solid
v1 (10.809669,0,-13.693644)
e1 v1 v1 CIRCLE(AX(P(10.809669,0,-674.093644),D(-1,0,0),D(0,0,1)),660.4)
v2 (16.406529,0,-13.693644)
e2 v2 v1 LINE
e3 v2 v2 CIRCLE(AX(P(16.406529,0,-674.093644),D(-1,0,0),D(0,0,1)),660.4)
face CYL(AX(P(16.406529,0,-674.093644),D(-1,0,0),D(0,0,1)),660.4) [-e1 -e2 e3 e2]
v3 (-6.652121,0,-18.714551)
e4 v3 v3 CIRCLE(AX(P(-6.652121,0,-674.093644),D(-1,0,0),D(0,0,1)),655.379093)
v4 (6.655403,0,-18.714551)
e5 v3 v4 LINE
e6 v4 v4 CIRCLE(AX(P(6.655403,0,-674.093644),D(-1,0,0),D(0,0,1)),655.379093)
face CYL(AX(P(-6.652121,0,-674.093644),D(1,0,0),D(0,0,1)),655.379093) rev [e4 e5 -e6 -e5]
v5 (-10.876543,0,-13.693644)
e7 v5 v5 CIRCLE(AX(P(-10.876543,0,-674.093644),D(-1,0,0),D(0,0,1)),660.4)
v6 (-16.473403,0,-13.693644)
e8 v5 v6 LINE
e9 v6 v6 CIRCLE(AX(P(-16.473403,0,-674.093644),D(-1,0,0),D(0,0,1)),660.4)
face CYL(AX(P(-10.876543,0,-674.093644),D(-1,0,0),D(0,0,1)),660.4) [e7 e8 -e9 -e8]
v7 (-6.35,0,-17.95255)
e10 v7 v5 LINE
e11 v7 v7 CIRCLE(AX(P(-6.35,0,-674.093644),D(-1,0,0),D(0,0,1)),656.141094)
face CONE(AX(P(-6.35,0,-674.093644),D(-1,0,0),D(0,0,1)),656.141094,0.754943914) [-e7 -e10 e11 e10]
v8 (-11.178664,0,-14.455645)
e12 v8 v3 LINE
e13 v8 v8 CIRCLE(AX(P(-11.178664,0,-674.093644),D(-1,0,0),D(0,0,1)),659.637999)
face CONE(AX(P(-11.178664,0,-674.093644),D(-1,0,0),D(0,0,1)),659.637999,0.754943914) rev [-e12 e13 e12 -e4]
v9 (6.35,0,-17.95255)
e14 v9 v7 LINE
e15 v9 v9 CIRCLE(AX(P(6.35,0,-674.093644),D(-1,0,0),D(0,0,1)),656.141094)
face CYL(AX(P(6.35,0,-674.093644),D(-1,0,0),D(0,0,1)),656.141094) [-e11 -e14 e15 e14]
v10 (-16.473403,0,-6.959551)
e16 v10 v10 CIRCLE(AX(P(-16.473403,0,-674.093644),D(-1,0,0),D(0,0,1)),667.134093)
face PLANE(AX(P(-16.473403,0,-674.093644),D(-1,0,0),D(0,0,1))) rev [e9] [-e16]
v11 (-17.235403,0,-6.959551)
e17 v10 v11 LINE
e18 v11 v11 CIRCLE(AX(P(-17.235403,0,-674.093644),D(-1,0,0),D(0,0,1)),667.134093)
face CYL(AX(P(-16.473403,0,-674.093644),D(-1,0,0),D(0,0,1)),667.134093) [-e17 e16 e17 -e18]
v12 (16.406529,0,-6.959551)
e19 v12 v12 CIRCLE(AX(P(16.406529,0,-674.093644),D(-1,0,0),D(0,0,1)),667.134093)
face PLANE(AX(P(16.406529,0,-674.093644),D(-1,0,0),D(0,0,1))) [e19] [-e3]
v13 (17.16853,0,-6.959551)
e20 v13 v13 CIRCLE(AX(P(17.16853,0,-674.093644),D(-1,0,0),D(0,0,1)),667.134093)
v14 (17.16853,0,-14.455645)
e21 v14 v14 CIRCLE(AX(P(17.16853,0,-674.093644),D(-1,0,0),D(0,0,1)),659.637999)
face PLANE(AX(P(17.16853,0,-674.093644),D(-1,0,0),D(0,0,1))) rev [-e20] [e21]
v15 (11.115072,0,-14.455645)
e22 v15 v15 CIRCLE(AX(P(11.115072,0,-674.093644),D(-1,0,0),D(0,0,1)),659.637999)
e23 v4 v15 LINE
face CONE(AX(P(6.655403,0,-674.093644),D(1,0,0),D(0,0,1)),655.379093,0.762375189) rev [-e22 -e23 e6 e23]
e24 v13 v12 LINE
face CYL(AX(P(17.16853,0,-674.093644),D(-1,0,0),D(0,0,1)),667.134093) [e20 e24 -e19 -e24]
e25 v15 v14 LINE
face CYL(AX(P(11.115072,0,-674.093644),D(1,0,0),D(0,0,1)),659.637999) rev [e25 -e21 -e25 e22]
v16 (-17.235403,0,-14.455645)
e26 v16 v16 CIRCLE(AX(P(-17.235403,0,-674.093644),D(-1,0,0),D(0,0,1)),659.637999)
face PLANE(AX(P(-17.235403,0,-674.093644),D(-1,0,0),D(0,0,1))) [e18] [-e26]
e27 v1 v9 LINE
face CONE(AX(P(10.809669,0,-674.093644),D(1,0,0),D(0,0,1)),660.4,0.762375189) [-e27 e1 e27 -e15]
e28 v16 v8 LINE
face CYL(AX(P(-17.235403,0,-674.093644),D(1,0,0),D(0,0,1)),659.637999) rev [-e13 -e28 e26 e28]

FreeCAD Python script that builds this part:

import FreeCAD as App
import Part
import Sketcher
Q = App.Units.Quantity

doc = App.newDocument("Part")
body = doc.addObject("PartDesign::Body", "Body")

# Sketch on XZ plane
sketch1 = body.newObject("Sketcher::SketchObject", "Sketch")
sketch1.AttachmentSupport = (doc.getObject("XZ_Plane"), [""])
sketch1.MapMode = "FlatFace"
sketch1.addGeometry([
    Part.LineSegment(App.Vector(-16.5, -13.7, 0), App.Vector(-16.5, -7, 0)),  # 0
    Part.LineSegment(App.Vector(-16.5, -7, 0), App.Vector(-17.2, -7, 0)),  # 1
    Part.LineSegment(App.Vector(-17.2, -7, 0), App.Vector(-17.2, -14.5, 0)),  # 2
    Part.LineSegment(App.Vector(-17.2, -14.5, 0), App.Vector(-11.2, -14.5, 0)),  # 3
    Part.LineSegment(App.Vector(-11.2, -14.5, 0), App.Vector(-6.7, -18.7, 0)),  # 4
    Part.LineSegment(App.Vector(-6.7, -18.7, 0), App.Vector(6.7, -18.7, 0)),  # 5
    Part.LineSegment(App.Vector(6.7, -18.7, 0), App.Vector(11.1, -14.5, 0)),  # 6
    Part.LineSegment(App.Vector(11.1, -14.5, 0), App.Vector(17.2, -14.5, 0)),  # 7
    Part.LineSegment(App.Vector(17.2, -14.5, 0), App.Vector(17.2, -7, 0)),  # 8
    Part.LineSegment(App.Vector(17.2, -7, 0), App.Vector(16.4, -7, 0)),  # 9
    Part.LineSegment(App.Vector(16.4, -7, 0), App.Vector(16.4, -13.7, 0)),  # 10
    Part.LineSegment(App.Vector(16.4, -13.7, 0), App.Vector(10.8, -13.7, 0)),  # 11
    Part.LineSegment(App.Vector(10.8, -13.7, 0), App.Vector(6.3, -18, 0)),  # 12
    Part.LineSegment(App.Vector(6.3, -18, 0), App.Vector(-6.3, -18, 0)),  # 13
    Part.LineSegment(App.Vector(-6.3, -18, 0), App.Vector(-10.9, -13.7, 0)),  # 14
    Part.LineSegment(App.Vector(-10.9, -13.7, 0), App.Vector(-16.5, -13.7, 0)),  # 15
], False)
sketch1.addGeometry(Part.LineSegment(App.Vector(17.2, -674.1, 0), App.Vector(-17.2, -674.1, 0)), True)  # axis
sketch1.addConstraint([
    Sketcher.Constraint("Coincident", 0, 2, 1, 1),
    Sketcher.Constraint("Coincident", 1, 2, 2, 1),
    Sketcher.Constraint("Coincident", 2, 2, 3, 1),
    Sketcher.Constraint("Coincident", 3, 2, 4, 1),
    Sketcher.Constraint("Coincident", 4, 2, 5, 1),
    Sketcher.Constraint("Coincident", 5, 2, 6, 1),
    Sketcher.Constraint("Coincident", 6, 2, 7, 1),
    Sketcher.Constraint("Coincident", 7, 2, 8, 1),
    Sketcher.Constraint("Coincident", 8, 2, 9, 1),
    Sketcher.Constraint("Coincident", 9, 2, 10, 1),
    Sketcher.Constraint("Coincident", 10, 2, 11, 1),
    Sketcher.Constraint("Coincident", 11, 2, 12, 1),
    Sketcher.Constraint("Coincident", 12, 2, 13, 1),
    Sketcher.Constraint("Coincident", 13, 2, 14, 1),
    Sketcher.Constraint("Coincident", 14, 2, 15, 1),
    Sketcher.Constraint("Coincident", 15, 2, 0, 1),
    Sketcher.Constraint("Vertical", 0),
    Sketcher.Constraint("Horizontal", 1),
    Sketcher.Constraint("Vertical", 2),
    Sketcher.Constraint("Horizontal", 3),
    Sketcher.Constraint("Horizontal", 5),
    Sketcher.Constraint("Horizontal", 7),
    Sketcher.Constraint("Vertical", 8),
    Sketcher.Constraint("Horizontal", 9),
    Sketcher.Constraint("Vertical", 10),
    Sketcher.Constraint("Horizontal", 11),
    Sketcher.Constraint("Horizontal", 13),
    Sketcher.Constraint("Horizontal", 15),
    Sketcher.Constraint("Horizontal", 16),
    Sketcher.Constraint("Parallel", 6, 12),
    Sketcher.Constraint("Parallel", 4, 14),
    Sketcher.Constraint("Horizontal", 3, 2, 6, 2),
    Sketcher.Constraint("Horizontal", 1, 2, 8, 2),
    Sketcher.Constraint("Horizontal", 11, 2, 14, 2),
    Sketcher.Constraint("Vertical", 8, 2, 16, 1),
    Sketcher.Constraint("Vertical", 2, 2, 16, 2),
    Sketcher.Constraint("Equal", 1, 9),
    Sketcher.Constraint("Equal", 11, 15),
    Sketcher.Constraint("Equal", 6, 12),
    Sketcher.Constraint("DistanceX", 13, 2, 13, 1, Q("0.5 in")),
    Sketcher.Constraint("DistanceX", 1, 2, 1, 1, Q("0.03 in")),
    Sketcher.Constraint("DistanceX", -1, 1, 12, 2, Q("0.25 in")),
    Sketcher.Constraint("DistanceY", 7, 2, 10, 2, Q("0.03 in")),
    Sketcher.Constraint("DistanceY", 16, 1, 7, 2, Q("25.97 in")),
    Sketcher.Constraint("DistanceX", 3, 1, 3, 2, 6.056739),
    Sketcher.Constraint("DistanceX", 7, 1, 7, 2, 6.053458),
    Sketcher.Constraint("DistanceX", 11, 2, 11, 1, 5.59686),
    Sketcher.Constraint("DistanceY", 4, 2, 0, 2, 11.755),
    Sketcher.Constraint("DistanceX", 16, 2, 16, 1, 34.403933),
    Sketcher.Constraint("DistanceY", 0, 1, 0, 2, 6.734093),
    Sketcher.Constraint("DistanceY", 0, 2, -1, 1, 6.959551),
    Sketcher.Constraint("DistanceX", -1, 1, 7, 2, 17.16853),
])
revolution = body.newObject("PartDesign::Revolution", "Revolution")
revolution.Profile = sketch1
revolution.ReferenceAxis = (sketch1, ["Axis0"])
revolution.Angle = 360

doc.recompute()
